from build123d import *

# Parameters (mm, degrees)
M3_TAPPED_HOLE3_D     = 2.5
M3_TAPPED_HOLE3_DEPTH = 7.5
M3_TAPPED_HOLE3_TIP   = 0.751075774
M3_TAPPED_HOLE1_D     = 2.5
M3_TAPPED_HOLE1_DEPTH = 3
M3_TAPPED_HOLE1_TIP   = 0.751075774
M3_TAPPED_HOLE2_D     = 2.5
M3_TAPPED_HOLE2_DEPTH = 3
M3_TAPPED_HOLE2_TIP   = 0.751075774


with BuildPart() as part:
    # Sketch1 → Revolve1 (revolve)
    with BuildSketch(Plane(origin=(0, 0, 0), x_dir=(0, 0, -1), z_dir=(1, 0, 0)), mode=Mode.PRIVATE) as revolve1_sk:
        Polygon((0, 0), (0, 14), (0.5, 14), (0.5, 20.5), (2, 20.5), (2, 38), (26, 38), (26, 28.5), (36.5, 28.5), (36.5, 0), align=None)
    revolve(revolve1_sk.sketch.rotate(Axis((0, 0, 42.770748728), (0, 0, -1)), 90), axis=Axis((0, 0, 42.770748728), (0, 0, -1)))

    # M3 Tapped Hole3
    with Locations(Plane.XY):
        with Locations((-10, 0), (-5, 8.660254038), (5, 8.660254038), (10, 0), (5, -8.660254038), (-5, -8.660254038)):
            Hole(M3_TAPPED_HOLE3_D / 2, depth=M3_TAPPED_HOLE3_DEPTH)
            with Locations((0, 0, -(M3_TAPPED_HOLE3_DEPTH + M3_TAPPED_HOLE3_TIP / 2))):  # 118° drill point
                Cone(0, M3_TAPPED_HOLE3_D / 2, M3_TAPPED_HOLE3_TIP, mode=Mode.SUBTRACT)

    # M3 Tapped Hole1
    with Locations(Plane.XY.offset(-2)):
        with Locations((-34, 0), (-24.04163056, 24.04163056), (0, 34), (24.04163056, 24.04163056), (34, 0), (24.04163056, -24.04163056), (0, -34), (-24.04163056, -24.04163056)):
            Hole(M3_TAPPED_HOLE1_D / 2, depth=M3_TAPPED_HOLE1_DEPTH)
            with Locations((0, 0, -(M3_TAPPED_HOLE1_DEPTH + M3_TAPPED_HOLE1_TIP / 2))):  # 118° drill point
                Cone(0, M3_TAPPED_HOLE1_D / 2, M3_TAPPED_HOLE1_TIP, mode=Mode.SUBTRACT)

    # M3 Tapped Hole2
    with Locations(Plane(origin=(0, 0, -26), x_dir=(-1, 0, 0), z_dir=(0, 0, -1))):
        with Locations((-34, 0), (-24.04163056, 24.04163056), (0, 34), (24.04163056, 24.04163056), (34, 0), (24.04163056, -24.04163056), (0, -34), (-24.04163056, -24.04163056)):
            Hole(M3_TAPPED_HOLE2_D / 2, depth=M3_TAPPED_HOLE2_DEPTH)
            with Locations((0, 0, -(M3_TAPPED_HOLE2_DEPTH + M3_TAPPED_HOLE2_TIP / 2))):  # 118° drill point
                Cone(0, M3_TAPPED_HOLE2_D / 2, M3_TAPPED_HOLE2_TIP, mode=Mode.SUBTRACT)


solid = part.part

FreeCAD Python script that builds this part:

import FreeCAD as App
import Part
import Sketcher

V = App.Vector
Q = App.Units.Quantity

doc = App.newDocument("Part")
body = doc.addObject("PartDesign::Body", "Body")

sketch1 = body.newObject("Sketcher::SketchObject", "Sketch")
sketch1.AttachmentSupport = (doc.getObject("YZ_Plane"), [""])
sketch1.MapMode = "FlatFace"
sketch1.addGeometry([
    Part.LineSegment(V(14, 0, 0), V(0, 0, 0)),
    Part.LineSegment(V(0, 0, 0), V(0, -36.5, 0)),
    Part.LineSegment(V(0, -36.5, 0), V(28.5, -36.5, 0)),
    Part.LineSegment(V(28.5, -36.5, 0), V(28.5, -26, 0)),
    Part.LineSegment(V(28.5, -26, 0), V(38, -26, 0)),
    Part.LineSegment(V(38, -26, 0), V(38, -2, 0)),
    Part.LineSegment(V(38, -2, 0), V(20.5, -2, 0)),
    Part.LineSegment(V(20.5, -2, 0), V(20.5, -0.5, 0)),
    Part.LineSegment(V(20.5, -0.5, 0), V(14, -0.5, 0)),
    Part.LineSegment(V(14, -0.5, 0), V(14, 0, 0)),
], False)
sketch1.addConstraint([
    Sketcher.Constraint("Coincident", 0, 2, 1, 1),
    Sketcher.Constraint("Coincident", 1, 2, 2, 1),
    Sketcher.Constraint("Coincident", 2, 2, 3, 1),
    Sketcher.Constraint("Coincident", 3, 2, 4, 1),
    Sketcher.Constraint("Coincident", 4, 2, 5, 1),
    Sketcher.Constraint("Coincident", 5, 2, 6, 1),
    Sketcher.Constraint("Coincident", 6, 2, 7, 1),
    Sketcher.Constraint("Coincident", 7, 2, 8, 1),
    Sketcher.Constraint("Coincident", 8, 2, 9, 1),
    Sketcher.Constraint("Coincident", 9, 2, 0, 1),
    Sketcher.Constraint("Horizontal", 0),
    Sketcher.Constraint("Vertical", 1),
    Sketcher.Constraint("Horizontal", 2),
    Sketcher.Constraint("Vertical", 3),
    Sketcher.Constraint("Horizontal", 4),
    Sketcher.Constraint("Vertical", 5),
    Sketcher.Constraint("Horizontal", 6),
    Sketcher.Constraint("Vertical", 7),
    Sketcher.Constraint("Horizontal", 8),
    Sketcher.Constraint("Vertical", 9),
    Sketcher.Constraint("Coincident", 0, 2, -1, 1),
    Sketcher.Constraint("DistanceX", 0, 2, 0, 1, Q("14 mm")),
    Sketcher.Constraint("DistanceY", 5, 1, 5, 2, Q("24 mm")),
    Sketcher.Constraint("DistanceX", 2, 1, 2, 2, Q("28.5 mm")),
    Sketcher.Constraint("DistanceX", 4, 1, 4, 2, Q("9.5 mm")),
    Sketcher.Constraint("DistanceX", 6, 2, 6, 1, Q("17.5 mm")),
    Sketcher.Constraint("DistanceY", 1, 2, 1, 1, Q("36.5 mm")),
    Sketcher.Constraint("DistanceY", 3, 1, 3, 2, Q("10.5 mm")),
    Sketcher.Constraint("DistanceY", 7, 1, 7, 2, Q("1.5 mm")),
])
revolution = body.newObject("PartDesign::Revolution", "Revolution")
revolution.Profile = sketch1
revolution.ReferenceAxis = (sketch1, ["V_Axis"])
revolution.Angle = 360

sketch2 = body.newObject("Sketcher::SketchObject", "Sketch001")
sketch2.AttachmentSupport = (doc.getObject("XY_Plane"), [""])
sketch2.MapMode = "FlatFace"
sketch2.addGeometry([
    Part.Circle(V(-10, 0, 0), V(0, 0, 1), 1.2),
    Part.Circle(V(-5, 8.7, 0), V(0, 0, 1), 1.2),
    Part.Circle(V(5, 8.7, 0), V(0, 0, 1), 1.2),
    Part.Circle(V(10, 0, 0), V(0, 0, 1), 1.2),
    Part.Circle(V(5, -8.7, 0), V(0, 0, 1), 1.2),
    Part.Circle(V(-5, -8.7, 0), V(0, 0, 1), 1.2),
], False)
sketch2.addConstraint([
    Sketcher.Constraint("Equal", 0, 1),
    Sketcher.Constraint("Equal", 1, 2),
    Sketcher.Constraint("Equal", 2, 3),
    Sketcher.Constraint("Equal", 3, 4),
    Sketcher.Constraint("Equal", 4, 5),
    Sketcher.Constraint("Symmetric", 0, 3, 3, 3, -1, 1),
    Sketcher.Constraint("Symmetric", 1, 3, 4, 3, -1, 1),
    Sketcher.Constraint("Symmetric", 2, 3, 5, 3, -1, 1),
    Sketcher.Constraint("Symmetric", 1, 3, 2, 3, -2),
    Sketcher.Constraint("PointOnObject", 0, 3, -1),
    Sketcher.Constraint("Diameter", 0, Q("2.5 mm")),
    Sketcher.Constraint("DistanceX", 0, 3, -1, 1, Q("10 mm")),
    Sketcher.Constraint("DistanceX", 1, 3, -1, 1, Q("5 mm")),
    Sketcher.Constraint("DistanceY", 4, 3, 2, 3, Q("17.320508 mm")),
])
doc.recompute()
hole = body.newObject("PartDesign::Hole", "Hole")
hole.Profile = sketch2
hole.ThreadType = "None"
hole.Diameter = 2.5
hole.DepthType = "Dimension"
hole.Depth = 7.5
hole.DrillPoint = "Angled"
hole.DrillPointAngle = 118

sketch3 = body.newObject("Sketcher::SketchObject", "Sketch002")
sketch3.AttachmentSupport = (doc.getObject("XY_Plane"), [""])
sketch3.MapMode = "FlatFace"
sketch3.AttachmentOffset = App.Placement(V(0, 0, -2), App.Rotation())
sketch3.addGeometry([
    Part.Circle(V(-34, 0, 0), V(0, 0, 1), 1.2),
    Part.Circle(V(-24, 24, 0), V(0, 0, 1), 1.2),
    Part.Circle(V(0, 34, 0), V(0, 0, 1), 1.2),
    Part.Circle(V(24, 24, 0), V(0, 0, 1), 1.2),
    Part.Circle(V(34, 0, 0), V(0, 0, 1), 1.2),
    Part.Circle(V(24, -24, 0), V(0, 0, 1), 1.2),
    Part.Circle(V(0, -34, 0), V(0, 0, 1), 1.2),
    Part.Circle(V(-24, -24, 0), V(0, 0, 1), 1.2),
], False)
sketch3.addConstraint([
    Sketcher.Constraint("Equal", 0, 1),
    Sketcher.Constraint("Equal", 1, 2),
    Sketcher.Constraint("Equal", 2, 3),
    Sketcher.Constraint("Equal", 3, 4),
    Sketcher.Constraint("Equal", 4, 5),
    Sketcher.Constraint("Equal", 5, 6),
    Sketcher.Constraint("Equal", 6, 7),
    Sketcher.Constraint("Symmetric", 0, 3, 4, 3, -1, 1),
    Sketcher.Constraint("Symmetric", 1, 3, 5, 3, -1, 1),
    Sketcher.Constraint("Symmetric", 2, 3, 6, 3, -1, 1),
    Sketcher.Constraint("Symmetric", 3, 3, 7, 3, -1, 1),
    Sketcher.Constraint("Symmetric", 1, 3, 3, 3, -2),
    Sketcher.Constraint("PointOnObject", 0, 3, -1),
    Sketcher.Constraint("PointOnObject", 2, 3, -2),
    Sketcher.Constraint("Diameter", 0, Q("2.5 mm")),
    Sketcher.Constraint("DistanceX", 0, 3, -1, 1, Q("34 mm")),
    Sketcher.Constraint("DistanceY", -1, 1, 2, 3, Q("34 mm")),
    Sketcher.Constraint("DistanceX", 1, 3, -1, 1, Q("24.041631 mm")),
    Sketcher.Constraint("DistanceY", -1, 1, 1, 3, Q("24.041631 mm")),
])
doc.recompute()
hole2 = body.newObject("PartDesign::Hole", "Hole001")
hole2.Profile = sketch3
hole2.ThreadType = "None"
hole2.Diameter = 2.5
hole2.DepthType = "Dimension"
hole2.Depth = 3
hole2.DrillPoint = "Angled"
hole2.DrillPointAngle = 118

sketch4 = body.newObject("Sketcher::SketchObject", "Sketch003")
sketch4.AttachmentSupport = (doc.getObject("XY_Plane"), [""])
sketch4.MapMode = "FlatFace"
sketch4.AttachmentOffset = App.Placement(V(0, 0, -26), App.Rotation())
sketch4.addGeometry([
    Part.Circle(V(34, 0, 0), V(0, 0, 1), 1.2),
    Part.Circle(V(24, 24, 0), V(0, 0, 1), 1.2),
    Part.Circle(V(0, 34, 0), V(0, 0, 1), 1.2),
    Part.Circle(V(-24, 24, 0), V(0, 0, 1), 1.2),
    Part.Circle(V(-34, 0, 0), V(0, 0, 1), 1.2),
    Part.Circle(V(-24, -24, 0), V(0, 0, 1), 1.2),
    Part.Circle(V(0, -34, 0), V(0, 0, 1), 1.2),
    Part.Circle(V(24, -24, 0), V(0, 0, 1), 1.2),
], False)
sketch4.addConstraint([
    Sketcher.Constraint("Equal", 0, 1),
    Sketcher.Constraint("Equal", 1, 2),
    Sketcher.Constraint("Equal", 2, 3),
    Sketcher.Constraint("Equal", 3, 4),
    Sketcher.Constraint("Equal", 4, 5),
    Sketcher.Constraint("Equal", 5, 6),
    Sketcher.Constraint("Equal", 6, 7),
    Sketcher.Constraint("Symmetric", 0, 3, 4, 3, -1, 1),
    Sketcher.Constraint("Symmetric", 1, 3, 5, 3, -1, 1),
    Sketcher.Constraint("Symmetric", 2, 3, 6, 3, -1, 1),
    Sketcher.Constraint("Symmetric", 3, 3, 7, 3, -1, 1),
    Sketcher.Constraint("Symmetric", 1, 3, 3, 3, -2),
    Sketcher.Constraint("PointOnObject", 0, 3, -1),
    Sketcher.Constraint("PointOnObject", 2, 3, -2),
    Sketcher.Constraint("Diameter", 0, Q("2.5 mm")),
    Sketcher.Constraint("DistanceX", -1, 1, 0, 3, Q("34 mm")),
    Sketcher.Constraint("DistanceY", -1, 1, 2, 3, Q("34 mm")),
    Sketcher.Constraint("DistanceX", -1, 1, 1, 3, Q("24.041631 mm")),
    Sketcher.Constraint("DistanceY", -1, 1, 1, 3, Q("24.041631 mm")),
])
doc.recompute()
hole3 = body.newObject("PartDesign::Hole", "Hole002")
hole3.Profile = sketch4
hole3.ThreadType = "None"
hole3.Diameter = 2.5
hole3.DepthType = "Dimension"
hole3.Depth = 3
hole3.DrillPoint = "Angled"
hole3.DrillPointAngle = 118
hole3.Reversed = True

doc.recompute()
